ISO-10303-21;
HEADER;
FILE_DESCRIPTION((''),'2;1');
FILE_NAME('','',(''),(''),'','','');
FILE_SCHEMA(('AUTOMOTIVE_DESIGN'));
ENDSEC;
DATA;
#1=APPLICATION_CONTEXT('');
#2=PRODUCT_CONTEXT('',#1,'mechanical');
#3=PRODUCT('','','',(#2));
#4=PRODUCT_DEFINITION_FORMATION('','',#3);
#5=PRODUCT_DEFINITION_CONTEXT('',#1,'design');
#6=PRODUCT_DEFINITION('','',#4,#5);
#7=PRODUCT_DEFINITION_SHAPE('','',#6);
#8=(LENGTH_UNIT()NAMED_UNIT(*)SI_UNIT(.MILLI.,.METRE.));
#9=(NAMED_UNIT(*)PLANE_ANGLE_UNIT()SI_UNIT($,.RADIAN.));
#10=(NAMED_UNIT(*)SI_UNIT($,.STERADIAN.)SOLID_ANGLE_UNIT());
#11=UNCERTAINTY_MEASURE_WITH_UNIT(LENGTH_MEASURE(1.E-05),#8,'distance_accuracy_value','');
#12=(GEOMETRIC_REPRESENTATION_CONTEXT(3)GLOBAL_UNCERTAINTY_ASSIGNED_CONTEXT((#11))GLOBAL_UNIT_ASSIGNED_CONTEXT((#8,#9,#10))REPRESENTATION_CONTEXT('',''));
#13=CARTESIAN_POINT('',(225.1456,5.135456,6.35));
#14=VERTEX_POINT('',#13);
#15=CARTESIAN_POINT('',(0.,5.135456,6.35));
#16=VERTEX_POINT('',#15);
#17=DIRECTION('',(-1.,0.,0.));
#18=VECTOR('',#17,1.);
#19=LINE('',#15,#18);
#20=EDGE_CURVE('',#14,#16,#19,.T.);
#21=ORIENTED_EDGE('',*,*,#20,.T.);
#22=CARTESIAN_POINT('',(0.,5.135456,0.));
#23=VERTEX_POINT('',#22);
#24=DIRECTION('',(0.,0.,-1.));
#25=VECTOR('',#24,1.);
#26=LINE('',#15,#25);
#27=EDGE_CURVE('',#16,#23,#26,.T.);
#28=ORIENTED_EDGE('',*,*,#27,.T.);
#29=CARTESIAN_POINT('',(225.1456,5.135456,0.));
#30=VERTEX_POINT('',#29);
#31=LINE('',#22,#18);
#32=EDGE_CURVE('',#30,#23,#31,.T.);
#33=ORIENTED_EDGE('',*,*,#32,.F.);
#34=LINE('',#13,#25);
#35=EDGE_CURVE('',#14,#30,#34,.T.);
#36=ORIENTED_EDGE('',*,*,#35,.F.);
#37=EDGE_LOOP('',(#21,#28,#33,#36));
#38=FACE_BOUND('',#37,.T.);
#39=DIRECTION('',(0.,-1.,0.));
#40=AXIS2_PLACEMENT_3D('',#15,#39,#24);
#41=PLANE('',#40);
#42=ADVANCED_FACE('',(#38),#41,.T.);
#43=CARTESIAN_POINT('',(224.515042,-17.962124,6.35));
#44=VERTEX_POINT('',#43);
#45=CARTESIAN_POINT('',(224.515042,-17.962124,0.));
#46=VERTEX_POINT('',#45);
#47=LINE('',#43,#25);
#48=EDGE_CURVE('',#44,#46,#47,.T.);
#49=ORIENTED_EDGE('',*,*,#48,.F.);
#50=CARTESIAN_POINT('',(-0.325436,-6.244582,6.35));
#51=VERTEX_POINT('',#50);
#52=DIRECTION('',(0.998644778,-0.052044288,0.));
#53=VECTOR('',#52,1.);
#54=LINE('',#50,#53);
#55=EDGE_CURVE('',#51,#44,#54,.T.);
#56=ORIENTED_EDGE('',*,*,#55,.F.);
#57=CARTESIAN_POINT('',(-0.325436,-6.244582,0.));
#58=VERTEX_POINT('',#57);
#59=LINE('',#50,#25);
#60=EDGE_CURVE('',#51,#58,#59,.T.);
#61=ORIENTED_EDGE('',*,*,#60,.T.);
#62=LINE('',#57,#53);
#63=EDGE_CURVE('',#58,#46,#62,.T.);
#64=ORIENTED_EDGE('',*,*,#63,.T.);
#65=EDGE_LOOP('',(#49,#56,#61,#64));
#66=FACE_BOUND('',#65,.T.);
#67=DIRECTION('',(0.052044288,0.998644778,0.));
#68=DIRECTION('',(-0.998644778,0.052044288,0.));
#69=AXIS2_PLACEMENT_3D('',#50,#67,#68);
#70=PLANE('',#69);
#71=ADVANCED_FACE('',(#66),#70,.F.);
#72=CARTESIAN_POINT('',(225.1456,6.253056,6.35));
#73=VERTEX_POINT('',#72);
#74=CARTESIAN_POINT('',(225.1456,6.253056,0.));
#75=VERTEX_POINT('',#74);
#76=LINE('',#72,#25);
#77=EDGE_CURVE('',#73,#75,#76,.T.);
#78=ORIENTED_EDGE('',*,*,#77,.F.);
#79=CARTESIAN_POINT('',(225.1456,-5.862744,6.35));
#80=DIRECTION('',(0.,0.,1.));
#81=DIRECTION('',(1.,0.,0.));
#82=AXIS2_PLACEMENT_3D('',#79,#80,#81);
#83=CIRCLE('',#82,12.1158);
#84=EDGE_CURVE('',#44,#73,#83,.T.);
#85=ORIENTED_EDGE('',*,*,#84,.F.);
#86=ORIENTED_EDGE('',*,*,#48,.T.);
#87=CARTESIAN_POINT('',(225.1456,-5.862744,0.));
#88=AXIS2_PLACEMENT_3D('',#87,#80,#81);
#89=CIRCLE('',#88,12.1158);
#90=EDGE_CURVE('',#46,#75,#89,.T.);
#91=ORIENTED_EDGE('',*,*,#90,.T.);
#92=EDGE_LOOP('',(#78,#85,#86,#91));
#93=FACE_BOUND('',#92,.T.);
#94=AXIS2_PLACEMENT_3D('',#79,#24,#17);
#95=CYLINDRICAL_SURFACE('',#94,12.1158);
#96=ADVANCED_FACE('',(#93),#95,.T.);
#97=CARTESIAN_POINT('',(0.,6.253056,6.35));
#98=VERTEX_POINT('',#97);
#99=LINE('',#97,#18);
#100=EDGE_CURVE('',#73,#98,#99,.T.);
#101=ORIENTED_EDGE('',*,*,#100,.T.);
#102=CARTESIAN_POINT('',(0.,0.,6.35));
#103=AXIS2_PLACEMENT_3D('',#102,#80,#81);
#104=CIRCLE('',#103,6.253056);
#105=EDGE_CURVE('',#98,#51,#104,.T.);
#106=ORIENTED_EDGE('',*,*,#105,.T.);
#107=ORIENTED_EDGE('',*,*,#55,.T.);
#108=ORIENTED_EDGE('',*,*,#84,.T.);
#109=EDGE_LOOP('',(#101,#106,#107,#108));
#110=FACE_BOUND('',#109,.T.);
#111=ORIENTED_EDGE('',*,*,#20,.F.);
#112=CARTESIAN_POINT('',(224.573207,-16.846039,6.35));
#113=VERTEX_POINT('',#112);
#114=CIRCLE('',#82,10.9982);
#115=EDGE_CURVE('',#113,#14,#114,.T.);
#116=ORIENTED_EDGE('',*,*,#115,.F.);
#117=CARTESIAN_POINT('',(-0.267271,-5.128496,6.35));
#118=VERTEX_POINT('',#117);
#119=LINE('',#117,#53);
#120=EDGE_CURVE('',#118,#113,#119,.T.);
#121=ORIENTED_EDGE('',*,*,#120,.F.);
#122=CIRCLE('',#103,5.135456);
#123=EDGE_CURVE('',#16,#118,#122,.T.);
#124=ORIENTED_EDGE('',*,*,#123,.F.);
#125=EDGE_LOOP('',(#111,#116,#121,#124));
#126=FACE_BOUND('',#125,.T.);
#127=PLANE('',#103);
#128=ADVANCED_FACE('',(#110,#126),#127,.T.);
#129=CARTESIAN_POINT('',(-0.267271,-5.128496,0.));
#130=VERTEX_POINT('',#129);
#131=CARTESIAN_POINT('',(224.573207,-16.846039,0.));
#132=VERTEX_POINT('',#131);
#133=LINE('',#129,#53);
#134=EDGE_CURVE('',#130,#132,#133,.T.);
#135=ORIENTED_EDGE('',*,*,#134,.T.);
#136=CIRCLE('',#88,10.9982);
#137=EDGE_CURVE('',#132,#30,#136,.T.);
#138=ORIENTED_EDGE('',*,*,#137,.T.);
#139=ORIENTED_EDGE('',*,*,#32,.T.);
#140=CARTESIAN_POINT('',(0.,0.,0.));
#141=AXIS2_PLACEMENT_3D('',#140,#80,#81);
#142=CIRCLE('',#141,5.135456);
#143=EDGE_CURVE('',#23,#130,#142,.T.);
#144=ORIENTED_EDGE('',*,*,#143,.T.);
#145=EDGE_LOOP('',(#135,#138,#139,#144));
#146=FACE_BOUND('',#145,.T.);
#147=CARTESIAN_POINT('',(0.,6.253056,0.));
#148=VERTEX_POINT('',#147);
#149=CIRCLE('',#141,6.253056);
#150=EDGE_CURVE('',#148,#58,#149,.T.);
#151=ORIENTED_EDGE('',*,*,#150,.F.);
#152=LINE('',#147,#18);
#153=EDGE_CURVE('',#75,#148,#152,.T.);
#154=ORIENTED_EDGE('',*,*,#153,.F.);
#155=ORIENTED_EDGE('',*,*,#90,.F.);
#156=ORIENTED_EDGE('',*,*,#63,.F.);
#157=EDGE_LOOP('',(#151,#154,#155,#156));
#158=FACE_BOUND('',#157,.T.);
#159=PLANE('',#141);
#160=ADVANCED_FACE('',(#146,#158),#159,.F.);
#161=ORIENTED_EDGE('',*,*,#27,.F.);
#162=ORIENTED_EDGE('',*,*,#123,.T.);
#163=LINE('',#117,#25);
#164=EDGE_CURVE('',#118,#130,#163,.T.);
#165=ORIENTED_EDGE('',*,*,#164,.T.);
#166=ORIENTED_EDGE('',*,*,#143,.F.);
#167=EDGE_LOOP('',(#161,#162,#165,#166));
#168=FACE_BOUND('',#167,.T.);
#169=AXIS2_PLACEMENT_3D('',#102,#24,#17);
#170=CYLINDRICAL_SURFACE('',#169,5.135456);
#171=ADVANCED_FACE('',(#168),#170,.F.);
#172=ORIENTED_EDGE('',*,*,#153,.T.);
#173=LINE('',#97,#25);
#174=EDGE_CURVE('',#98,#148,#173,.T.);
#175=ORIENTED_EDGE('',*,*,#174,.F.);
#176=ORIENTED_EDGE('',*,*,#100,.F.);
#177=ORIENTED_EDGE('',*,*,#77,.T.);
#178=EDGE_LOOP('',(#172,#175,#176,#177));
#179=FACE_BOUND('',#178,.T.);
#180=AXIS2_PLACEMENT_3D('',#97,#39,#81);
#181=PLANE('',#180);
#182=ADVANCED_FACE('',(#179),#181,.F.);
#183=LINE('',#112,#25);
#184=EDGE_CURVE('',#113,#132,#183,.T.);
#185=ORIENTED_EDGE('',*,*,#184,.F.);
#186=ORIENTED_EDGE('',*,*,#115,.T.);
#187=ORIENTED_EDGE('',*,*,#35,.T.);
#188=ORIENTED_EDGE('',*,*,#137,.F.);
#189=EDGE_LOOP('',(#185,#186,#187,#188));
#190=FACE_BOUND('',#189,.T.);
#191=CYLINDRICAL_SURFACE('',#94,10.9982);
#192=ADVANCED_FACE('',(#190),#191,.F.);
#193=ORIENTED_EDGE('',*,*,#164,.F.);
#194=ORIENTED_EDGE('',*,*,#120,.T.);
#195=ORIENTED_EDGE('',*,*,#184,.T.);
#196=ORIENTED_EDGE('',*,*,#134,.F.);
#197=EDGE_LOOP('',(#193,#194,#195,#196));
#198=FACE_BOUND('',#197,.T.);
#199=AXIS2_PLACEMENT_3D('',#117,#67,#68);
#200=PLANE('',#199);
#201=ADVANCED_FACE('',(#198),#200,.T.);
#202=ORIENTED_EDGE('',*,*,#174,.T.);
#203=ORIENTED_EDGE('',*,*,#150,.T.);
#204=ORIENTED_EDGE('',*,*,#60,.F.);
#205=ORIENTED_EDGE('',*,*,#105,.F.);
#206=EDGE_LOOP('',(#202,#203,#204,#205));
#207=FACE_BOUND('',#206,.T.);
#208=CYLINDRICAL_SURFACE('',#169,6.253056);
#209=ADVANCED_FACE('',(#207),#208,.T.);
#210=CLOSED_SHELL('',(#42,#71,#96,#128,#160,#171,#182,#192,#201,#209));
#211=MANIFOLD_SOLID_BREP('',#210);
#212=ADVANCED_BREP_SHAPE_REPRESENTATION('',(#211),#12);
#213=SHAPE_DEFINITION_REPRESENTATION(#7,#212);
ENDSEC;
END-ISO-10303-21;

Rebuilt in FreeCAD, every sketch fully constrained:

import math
import FreeCAD as App
import Part
import Sketcher

V = App.Vector
Q = App.Units.Quantity

doc = App.newDocument("Part")
params = doc.addObject("Spreadsheet::Sheet", "Params")
for row, (alias, value) in enumerate([
    ("sketch1_radius", "0.477 in"),
    ("sketch1_radius2", "0.433 in"),
    ("sketch1_width", "8.864 in"),
    ("pad1_length", "0.25 in"),
], start=1):
    params.set(f"A{row}", alias)
    params.set(f"B{row}", "=" + value)
    params.setAlias(f"B{row}", alias)

body = doc.addObject("PartDesign::Body", "Body")

# Sketch on XY plane
sketch1 = body.newObject("Sketcher::SketchObject", "Sketch")
sketch1.AttachmentSupport = (doc.getObject("XY_Plane"), [""])
sketch1.MapMode = "FlatFace"
sketch1.addGeometry([
    Part.LineSegment(V(0, -6, 0), V(225, -18, 0)),  # 0
    Part.ArcOfCircle(Part.Circle(V(225, -6, 0), V(0, 0, 1), 12), math.radians(-93), math.radians(90)),  # 1
    Part.LineSegment(V(225, 6, 0), V(0, 6, 0)),  # 2
    Part.ArcOfCircle(Part.Circle(V(0, 0, 0), V(0, 0, 1), 6), math.radians(90), math.radians(267)),  # 3
    Part.ArcOfCircle(Part.Circle(V(0, 0, 0), V(0, 0, 1), 5), math.radians(90), math.radians(267)),  # 4
    Part.LineSegment(V(0, 5, 0), V(225, 5, 0)),  # 5
    Part.ArcOfCircle(Part.Circle(V(225, -6, 0), V(0, 0, 1), 11), math.radians(-93), math.radians(90)),  # 6
    Part.LineSegment(V(225, -17, 0), V(0, -5, 0)),  # 7
], False)
sketch1.addConstraint([
    Sketcher.Constraint("Tangent", 0, 2, 1, 1),
    Sketcher.Constraint("Tangent", 1, 2, 2, 1),
    Sketcher.Constraint("Tangent", 2, 2, 3, 1),
    Sketcher.Constraint("Tangent", 3, 2, 0, 1),
    Sketcher.Constraint("Tangent", 4, 1, 5, 1),
    Sketcher.Constraint("Tangent", 5, 2, 6, 2),
    Sketcher.Constraint("Tangent", 6, 1, 7, 1),
    Sketcher.Constraint("Tangent", 7, 2, 4, 2),
    Sketcher.Constraint("Horizontal", 2),
    Sketcher.Constraint("Horizontal", 5),
    Sketcher.Constraint("Coincident", 3, 3, -1, 1),
    Sketcher.Constraint("Coincident", 4, 3, -1, 1),
    Sketcher.Constraint("Coincident", 6, 3, 1, 3),
    Sketcher.Constraint("Radius", 1, Q("0.477 in")),
    Sketcher.Constraint("Radius", 6, Q("0.433 in")),
    Sketcher.Constraint("DistanceX", 2, 2, 2, 1, Q("8.864 in")),
    Sketcher.Constraint("Radius", 3, Q("6.253056 mm")),
])
sketch1.setExpression("Constraints[13]", "Params.sketch1_radius")
sketch1.setExpression("Constraints[14]", "Params.sketch1_radius2")
sketch1.setExpression("Constraints[15]", "Params.sketch1_width")
pad1 = body.newObject("PartDesign::Pad", "Pad")
pad1.Profile = sketch1
pad1.setExpression("Length", "Params.pad1_length")

doc.recompute()
